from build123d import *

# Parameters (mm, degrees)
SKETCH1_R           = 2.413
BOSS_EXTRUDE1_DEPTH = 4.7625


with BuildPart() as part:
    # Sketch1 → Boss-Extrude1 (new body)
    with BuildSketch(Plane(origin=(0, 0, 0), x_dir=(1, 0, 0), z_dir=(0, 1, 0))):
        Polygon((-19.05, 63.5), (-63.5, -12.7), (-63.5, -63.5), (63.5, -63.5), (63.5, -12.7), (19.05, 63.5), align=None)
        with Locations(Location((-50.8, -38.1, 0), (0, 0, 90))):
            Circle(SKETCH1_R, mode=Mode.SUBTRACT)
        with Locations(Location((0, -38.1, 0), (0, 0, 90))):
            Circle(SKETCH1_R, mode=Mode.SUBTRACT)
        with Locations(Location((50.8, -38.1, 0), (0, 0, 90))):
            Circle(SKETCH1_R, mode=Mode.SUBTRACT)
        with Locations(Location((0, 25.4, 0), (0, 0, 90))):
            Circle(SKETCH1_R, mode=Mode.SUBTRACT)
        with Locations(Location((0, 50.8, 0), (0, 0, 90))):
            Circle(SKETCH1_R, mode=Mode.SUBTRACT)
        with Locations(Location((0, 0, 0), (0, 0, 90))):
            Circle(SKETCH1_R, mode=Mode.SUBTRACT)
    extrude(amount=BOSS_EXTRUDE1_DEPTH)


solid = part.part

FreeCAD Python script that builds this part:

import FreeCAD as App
import Part
import Sketcher

V = App.Vector
Q = App.Units.Quantity

doc = App.newDocument("Part")
body = doc.addObject("PartDesign::Body", "Body")

sketch1 = doc.addObject("Sketcher::SketchObject", "Sketch")
body.addObject(sketch1)
sketch1.AttachmentSupport = (doc.XZ_Plane, [""])
sketch1.MapMode = "FlatFace"
sketch1.addGeometry(Part.LineSegment(V(-19.1, -63.5, 0), V(-63.5, 12.7, 0)), False)
sketch1.addGeometry(Part.LineSegment(V(-63.5, 12.7, 0), V(-63.5, 63.5, 0)), False)
sketch1.addGeometry(Part.LineSegment(V(-63.5, 63.5, 0), V(63.5, 63.5, 0)), False)
sketch1.addGeometry(Part.LineSegment(V(63.5, 63.5, 0), V(63.5, 12.7, 0)), False)
sketch1.addGeometry(Part.LineSegment(V(63.5, 12.7, 0), V(19.1, -63.5, 0)), False)
sketch1.addGeometry(Part.LineSegment(V(19.1, -63.5, 0), V(-19.1, -63.5, 0)), False)
sketch1.addGeometry(Part.Circle(V(-50.8, 38.1, 0), V(0, 0, 1), 2.4), False)
sketch1.addGeometry(Part.Circle(V(0, 38.1, 0), V(0, 0, 1), 2.4), False)
sketch1.addGeometry(Part.Circle(V(50.8, 38.1, 0), V(0, 0, 1), 2.4), False)
sketch1.addGeometry(Part.Circle(V(0, 0, 0), V(0, 0, 1), 2.4), False)
sketch1.addGeometry(Part.Circle(V(0, -25.4, 0), V(0, 0, 1), 2.4), False)
sketch1.addGeometry(Part.Circle(V(0, -50.8, 0), V(0, 0, 1), 2.4), False)
sketch1.addConstraint(Sketcher.Constraint("Coincident", 0, 2, 1, 1))
sketch1.addConstraint(Sketcher.Constraint("Coincident", 1, 2, 2, 1))
sketch1.addConstraint(Sketcher.Constraint("Coincident", 2, 2, 3, 1))
sketch1.addConstraint(Sketcher.Constraint("Coincident", 3, 2, 4, 1))
sketch1.addConstraint(Sketcher.Constraint("Coincident", 4, 2, 5, 1))
sketch1.addConstraint(Sketcher.Constraint("Coincident", 5, 2, 0, 1))
sketch1.addConstraint(Sketcher.Constraint("Vertical", 1))
sketch1.addConstraint(Sketcher.Constraint("Horizontal", 2))
sketch1.addConstraint(Sketcher.Constraint("Vertical", 3))
sketch1.addConstraint(Sketcher.Constraint("Horizontal", 5))
sketch1.addConstraint(Sketcher.Constraint("Coincident", 9, 3, -1, 1))
sketch1.addConstraint(Sketcher.Constraint("Equal", 6, 7))
sketch1.addConstraint(Sketcher.Constraint("Equal", 7, 8))
sketch1.addConstraint(Sketcher.Constraint("Equal", 8, 9))
sketch1.addConstraint(Sketcher.Constraint("Equal", 9, 10))
sketch1.addConstraint(Sketcher.Constraint("Equal", 10, 11))
sketch1.addConstraint(Sketcher.Constraint("Symmetric", 6, 3, 8, 3, -2))
sketch1.addConstraint(Sketcher.Constraint("Symmetric", 0, 2, 3, 2, -2))
sketch1.addConstraint(Sketcher.Constraint("PointOnObject", 7, 3, -2))
sketch1.addConstraint(Sketcher.Constraint("PointOnObject", 10, 3, -2))
sketch1.addConstraint(Sketcher.Constraint("PointOnObject", 11, 3, -2))
sketch1.addConstraint(Sketcher.Constraint("Horizontal", 6, 3, 7, 3))
sketch1.addConstraint(Sketcher.Constraint("Equal", 0, 4))
sketch1.addConstraint(Sketcher.Constraint("Diameter", 6, Q("0.19 in")))
sketch1.addConstraint(Sketcher.Constraint("DistanceX", 2, 1, 2, 2, Q("5 in")))
sketch1.addConstraint(Sketcher.Constraint("DistanceY", 1, 1, 1, 2, Q("2 in")))
sketch1.addConstraint(Sketcher.Constraint("DistanceX", 5, 2, 5, 1, Q("1.5 in")))
sketch1.addConstraint(Sketcher.Constraint("DistanceX", 6, 3, -1, 1, Q("2 in")))
sketch1.addConstraint(Sketcher.Constraint("DistanceY", 10, 3, -1, 1, Q("1 in")))
sketch1.addConstraint(Sketcher.Constraint("DistanceY", 11, 3, -1, 1, Q("2 in")))
sketch1.addConstraint(Sketcher.Constraint("DistanceY", 0, 2, 6, 3, Q("1 in")))
sketch1.addConstraint(Sketcher.Constraint("DistanceY", 4, 2, 3, 2, Q("3 in")))
sketch1.addConstraint(Sketcher.Constraint("DistanceY", -1, 1, 6, 3, Q("1.5 in")))
pad1 = doc.addObject("PartDesign::Pad", "Pad")
body.addObject(pad1)
pad1.Profile = sketch1
pad1.Length = Q("0.1875 in")
pad1.Reversed = True

doc.recompute()
